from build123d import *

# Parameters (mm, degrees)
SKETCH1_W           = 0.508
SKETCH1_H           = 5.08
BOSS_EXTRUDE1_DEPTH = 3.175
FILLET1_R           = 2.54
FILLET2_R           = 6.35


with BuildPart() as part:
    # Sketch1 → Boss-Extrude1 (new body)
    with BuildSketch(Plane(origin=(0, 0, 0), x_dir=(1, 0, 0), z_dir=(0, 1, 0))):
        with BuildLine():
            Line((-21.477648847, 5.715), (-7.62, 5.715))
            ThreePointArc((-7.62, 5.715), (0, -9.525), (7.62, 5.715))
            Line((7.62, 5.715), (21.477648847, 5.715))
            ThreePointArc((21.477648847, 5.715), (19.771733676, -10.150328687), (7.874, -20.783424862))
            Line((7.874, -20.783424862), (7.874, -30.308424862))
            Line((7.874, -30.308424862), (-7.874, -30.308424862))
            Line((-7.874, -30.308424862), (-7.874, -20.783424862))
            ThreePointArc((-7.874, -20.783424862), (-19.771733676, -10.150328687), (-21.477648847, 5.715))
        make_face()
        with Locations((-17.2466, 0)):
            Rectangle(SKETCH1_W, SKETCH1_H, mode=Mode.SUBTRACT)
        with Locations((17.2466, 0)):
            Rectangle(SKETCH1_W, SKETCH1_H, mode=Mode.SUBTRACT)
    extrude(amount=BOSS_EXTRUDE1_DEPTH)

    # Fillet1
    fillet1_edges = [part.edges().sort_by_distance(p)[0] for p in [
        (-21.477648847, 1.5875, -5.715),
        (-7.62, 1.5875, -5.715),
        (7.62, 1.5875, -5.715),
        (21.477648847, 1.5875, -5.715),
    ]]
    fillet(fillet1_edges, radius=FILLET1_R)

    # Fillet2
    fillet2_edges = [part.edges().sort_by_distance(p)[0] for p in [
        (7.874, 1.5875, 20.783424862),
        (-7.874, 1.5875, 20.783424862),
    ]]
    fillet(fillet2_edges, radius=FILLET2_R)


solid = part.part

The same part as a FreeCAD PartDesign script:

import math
import FreeCAD as App
import Part
import Sketcher
Q = App.Units.Quantity


def edges_at(feature, points):
    """Names of the edges that pass closest to the given points."""
    edges = feature.Shape.Edges
    near = lambda p: min(range(len(edges)), key=lambda i: edges[i].distToShape(Part.Vertex(*p))[0])
    return sorted({f"Edge{near(p) + 1}" for p in points})


def add_polygon(sketch, points):
    """Adds a closed chain of lines whose ends are joined by coincident constraints."""
    first, n = sketch.GeometryCount, len(points)
    for a, b in zip(points, points[1:] + points[:1]):
        sketch.addGeometry(Part.LineSegment(App.Vector(*a, 0), App.Vector(*b, 0)), False)
    for i in range(n):
        sketch.addConstraint(Sketcher.Constraint("Coincident", first + i, 2, first + (i + 1) % n, 1))

doc = App.newDocument("Part")
body = doc.addObject("PartDesign::Body", "Body")

# Sketch on XZ plane
sketch1 = body.newObject("Sketcher::SketchObject", "Sketch")
sketch1.AttachmentSupport = (doc.getObject("XZ_Plane"), [""])
sketch1.MapMode = "FlatFace"
sketch1.addGeometry(Part.LineSegment(App.Vector(-7.62, -5.715, 0), App.Vector(-21.477649, -5.715, 0)), False)  # 0
sketch1.addGeometry(Part.ArcOfCircle(Part.Circle(App.Vector(0, 0, 0), App.Vector(0, 0, 1), 22.225), math.radians(110.749674), math.radians(194.900597)), False)  # 1
sketch1.addGeometry(Part.LineSegment(App.Vector(-7.874, 20.783425, 0), App.Vector(-7.874, 30.308425, 0)), False)  # 2
sketch1.addGeometry(Part.LineSegment(App.Vector(-7.874, 30.308425, 0), App.Vector(7.874, 30.308425, 0)), False)  # 3
sketch1.addGeometry(Part.LineSegment(App.Vector(7.874, 30.308425, 0), App.Vector(7.874, 20.783425, 0)), False)  # 4
sketch1.addGeometry(Part.ArcOfCircle(Part.Circle(App.Vector(0, 0, 0), App.Vector(0, 0, 1), 22.225), math.radians(-14.900597), math.radians(69.250326)), False)  # 5
sketch1.addGeometry(Part.LineSegment(App.Vector(21.477649, -5.715, 0), App.Vector(7.62, -5.715, 0)), False)  # 6
sketch1.addGeometry(Part.ArcOfCircle(Part.Circle(App.Vector(0, 0, 0), App.Vector(0, 0, 1), 9.525), math.radians(-36.869898), math.radians(216.869898)), False)  # 7
add_polygon(sketch1, [(16.9926, 2.54), (16.9926, -2.54), (17.5006, -2.54), (17.5006, 2.54)])  # lines 8-11
add_polygon(sketch1, [(-17.5006, 2.54), (-17.5006, -2.54), (-16.9926, -2.54), (-16.9926, 2.54)])  # lines 12-15
sketch1.addConstraint([
    Sketcher.Constraint("Coincident", 0, 2, 1, 2),
    Sketcher.Constraint("Coincident", 1, 1, 2, 1),
    Sketcher.Constraint("Coincident", 2, 2, 3, 1),
    Sketcher.Constraint("Coincident", 3, 2, 4, 1),
    Sketcher.Constraint("Coincident", 4, 2, 5, 2),
    Sketcher.Constraint("Coincident", 5, 1, 6, 1),
    Sketcher.Constraint("Coincident", 6, 2, 7, 1),
    Sketcher.Constraint("Coincident", 7, 2, 0, 1),
    Sketcher.Constraint("Horizontal", 0),
    Sketcher.Constraint("Vertical", 2),
    Sketcher.Constraint("Horizontal", 3),
    Sketcher.Constraint("Vertical", 4),
    Sketcher.Constraint("Horizontal", 6),
    Sketcher.Constraint("Vertical", 8),
    Sketcher.Constraint("Horizontal", 9),
    Sketcher.Constraint("Vertical", 10),
    Sketcher.Constraint("Horizontal", 11),
    Sketcher.Constraint("Vertical", 12),
    Sketcher.Constraint("Horizontal", 13),
    Sketcher.Constraint("Vertical", 14),
    Sketcher.Constraint("Horizontal", 15),
    Sketcher.Constraint("Coincident", 1, 3, -1, 1),
    Sketcher.Constraint("Coincident", 5, 3, -1, 1),
    Sketcher.Constraint("Coincident", 7, 3, -1, 1),
    Sketcher.Constraint("Equal", 1, 5),
    Sketcher.Constraint("Symmetric", 10, 2, 12, 2, -1, 1),
    Sketcher.Constraint("Symmetric", 8, 2, 14, 2, -1, 1),
    Sketcher.Constraint("Horizontal", 1, 1, 4, 2),
    Sketcher.Constraint("Horizontal", 0, 2, 5, 1),
    Sketcher.Constraint("Horizontal", 9, 2, 12, 2),
    Sketcher.Constraint("DistanceY", 8, 2, 8, 1, Q("0.2 in")),
    Sketcher.Constraint("Radius", 1, Q("0.875 in")),
    Sketcher.Constraint("Radius", 7, Q("0.375 in")),
    Sketcher.Constraint("DistanceX", 3, 1, 3, 2, Q("0.62 in")),
    Sketcher.Constraint("DistanceX", 9, 1, 9, 2, Q("0.02 in")),
    Sketcher.Constraint("DistanceX", -1, 1, 6, 2, Q("0.3 in")),
    Sketcher.Constraint("DistanceY", 2, 1, 2, 2, Q("0.375 in")),
    Sketcher.Constraint("DistanceX", -1, 1, 8, 2, Q("0.669 in")),
])
pad1 = body.newObject("PartDesign::Pad", "Pad")
pad1.Profile = sketch1
pad1.Length = Q("0.125 in")
pad1.Reversed = True
doc.recompute()

fillet = body.newObject("PartDesign::Fillet", "Fillet")
fillet.Base = (pad1, edges_at(pad1, [
    (-21.478, 1.587, -5.715),
    (-7.62, 1.587, -5.715),
    (7.62, 1.587, -5.715),
    (21.478, 1.587, -5.715),
]))
fillet.Radius = Q("0.1 in")
doc.recompute()

fillet2 = body.newObject("PartDesign::Fillet", "Fillet001")
fillet2.Base = (fillet, edges_at(fillet, [(7.874, 1.587, 20.783), (-7.874, 1.587, 20.783)]))
fillet2.Radius = Q("0.25 in")

doc.recompute()
